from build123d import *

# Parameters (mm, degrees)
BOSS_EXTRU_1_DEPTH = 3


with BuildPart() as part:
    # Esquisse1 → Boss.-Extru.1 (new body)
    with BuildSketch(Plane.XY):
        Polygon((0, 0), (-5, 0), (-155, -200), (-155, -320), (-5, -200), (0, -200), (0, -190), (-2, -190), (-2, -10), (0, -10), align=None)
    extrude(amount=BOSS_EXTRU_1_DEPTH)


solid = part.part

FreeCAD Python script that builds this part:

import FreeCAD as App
import Part
import Sketcher

V = App.Vector
Q = App.Units.Quantity

doc = App.newDocument("Part")
params = doc.addObject("Spreadsheet::Sheet", "Params")
for row, (alias, value) in enumerate([
    ("sketch1_width", "5 mm"),
    ("sketch1_width2", "2 mm"),
    ("sketch1_height", "120 mm"),
    ("sketch1_height2", "10 mm"),
    ("sketch1_height3", "180 mm"),
    ("pad1_length", "3 mm"),
], start=1):
    params.set(f"A{row}", alias)
    params.set(f"B{row}", "=" + value)
    params.setAlias(f"B{row}", alias)

body = doc.addObject("PartDesign::Body", "Body")

# Sketch on XY plane
sketch1 = body.newObject("Sketcher::SketchObject", "Sketch")
sketch1.AttachmentSupport = (doc.getObject("XY_Plane"), [""])
sketch1.MapMode = "FlatFace"
sketch1.addGeometry(Part.LineSegment(V(0, 0, 0), V(-5, 0, 0)), False)
sketch1.addGeometry(Part.LineSegment(V(-5, 0, 0), V(-155, -200, 0)), False)
sketch1.addGeometry(Part.LineSegment(V(-155, -200, 0), V(-155, -320, 0)), False)
sketch1.addGeometry(Part.LineSegment(V(-155, -320, 0), V(-5, -200, 0)), False)
sketch1.addGeometry(Part.LineSegment(V(-5, -200, 0), V(0, -200, 0)), False)
sketch1.addGeometry(Part.LineSegment(V(0, -200, 0), V(0, -190, 0)), False)
sketch1.addGeometry(Part.LineSegment(V(0, -190, 0), V(-2, -190, 0)), False)
sketch1.addGeometry(Part.LineSegment(V(-2, -190, 0), V(-2, -10, 0)), False)
sketch1.addGeometry(Part.LineSegment(V(-2, -10, 0), V(0, -10, 0)), False)
sketch1.addGeometry(Part.LineSegment(V(0, -10, 0), V(0, 0, 0)), False)
sketch1.addConstraint(Sketcher.Constraint("Coincident", 0, 2, 1, 1))
sketch1.addConstraint(Sketcher.Constraint("Coincident", 1, 2, 2, 1))
sketch1.addConstraint(Sketcher.Constraint("Coincident", 2, 2, 3, 1))
sketch1.addConstraint(Sketcher.Constraint("Coincident", 3, 2, 4, 1))
sketch1.addConstraint(Sketcher.Constraint("Coincident", 4, 2, 5, 1))
sketch1.addConstraint(Sketcher.Constraint("Coincident", 5, 2, 6, 1))
sketch1.addConstraint(Sketcher.Constraint("Coincident", 6, 2, 7, 1))
sketch1.addConstraint(Sketcher.Constraint("Coincident", 7, 2, 8, 1))
sketch1.addConstraint(Sketcher.Constraint("Coincident", 8, 2, 9, 1))
sketch1.addConstraint(Sketcher.Constraint("Coincident", 9, 2, 0, 1))
sketch1.addConstraint(Sketcher.Constraint("Horizontal", 0))
sketch1.addConstraint(Sketcher.Constraint("Vertical", 2))
sketch1.addConstraint(Sketcher.Constraint("Horizontal", 4))
sketch1.addConstraint(Sketcher.Constraint("Vertical", 5))
sketch1.addConstraint(Sketcher.Constraint("Horizontal", 6))
sketch1.addConstraint(Sketcher.Constraint("Vertical", 7))
sketch1.addConstraint(Sketcher.Constraint("Horizontal", 8))
sketch1.addConstraint(Sketcher.Constraint("Vertical", 9))
sketch1.addConstraint(Sketcher.Constraint("Coincident", 9, 2, -1, 1))
sketch1.addConstraint(Sketcher.Constraint("PointOnObject", 4, 2, -2))
sketch1.addConstraint(Sketcher.Constraint("Horizontal", 1, 2, 3, 2))
sketch1.addConstraint(Sketcher.Constraint("Vertical", 0, 2, 3, 2))
sketch1.addConstraint(Sketcher.Constraint("Equal", 5, 9))
sketch1.addConstraint(Sketcher.Constraint("DistanceX", 0, 2, 0, 1, Q("5 mm")))
sketch1.addConstraint(Sketcher.Constraint("DistanceX", 6, 2, 6, 1, Q("2 mm")))
sketch1.addConstraint(Sketcher.Constraint("DistanceY", 2, 2, 2, 1, Q("120 mm")))
sketch1.addConstraint(Sketcher.Constraint("DistanceY", 5, 1, 5, 2, Q("10 mm")))
sketch1.addConstraint(Sketcher.Constraint("DistanceY", 7, 1, 7, 2, Q("180 mm")))
sketch1.addConstraint(Sketcher.Constraint("Distance", 1, Q("250 mm")))
sketch1.setExpression("Constraints[23]", "Params.sketch1_width")
sketch1.setExpression("Constraints[24]", "Params.sketch1_width2")
sketch1.setExpression("Constraints[25]", "Params.sketch1_height")
sketch1.setExpression("Constraints[26]", "Params.sketch1_height2")
sketch1.setExpression("Constraints[27]", "Params.sketch1_height3")
pad1 = body.newObject("PartDesign::Pad", "Pad")
pad1.Profile = sketch1
pad1.setExpression("Length", "Params.pad1_length")

doc.recompute()
